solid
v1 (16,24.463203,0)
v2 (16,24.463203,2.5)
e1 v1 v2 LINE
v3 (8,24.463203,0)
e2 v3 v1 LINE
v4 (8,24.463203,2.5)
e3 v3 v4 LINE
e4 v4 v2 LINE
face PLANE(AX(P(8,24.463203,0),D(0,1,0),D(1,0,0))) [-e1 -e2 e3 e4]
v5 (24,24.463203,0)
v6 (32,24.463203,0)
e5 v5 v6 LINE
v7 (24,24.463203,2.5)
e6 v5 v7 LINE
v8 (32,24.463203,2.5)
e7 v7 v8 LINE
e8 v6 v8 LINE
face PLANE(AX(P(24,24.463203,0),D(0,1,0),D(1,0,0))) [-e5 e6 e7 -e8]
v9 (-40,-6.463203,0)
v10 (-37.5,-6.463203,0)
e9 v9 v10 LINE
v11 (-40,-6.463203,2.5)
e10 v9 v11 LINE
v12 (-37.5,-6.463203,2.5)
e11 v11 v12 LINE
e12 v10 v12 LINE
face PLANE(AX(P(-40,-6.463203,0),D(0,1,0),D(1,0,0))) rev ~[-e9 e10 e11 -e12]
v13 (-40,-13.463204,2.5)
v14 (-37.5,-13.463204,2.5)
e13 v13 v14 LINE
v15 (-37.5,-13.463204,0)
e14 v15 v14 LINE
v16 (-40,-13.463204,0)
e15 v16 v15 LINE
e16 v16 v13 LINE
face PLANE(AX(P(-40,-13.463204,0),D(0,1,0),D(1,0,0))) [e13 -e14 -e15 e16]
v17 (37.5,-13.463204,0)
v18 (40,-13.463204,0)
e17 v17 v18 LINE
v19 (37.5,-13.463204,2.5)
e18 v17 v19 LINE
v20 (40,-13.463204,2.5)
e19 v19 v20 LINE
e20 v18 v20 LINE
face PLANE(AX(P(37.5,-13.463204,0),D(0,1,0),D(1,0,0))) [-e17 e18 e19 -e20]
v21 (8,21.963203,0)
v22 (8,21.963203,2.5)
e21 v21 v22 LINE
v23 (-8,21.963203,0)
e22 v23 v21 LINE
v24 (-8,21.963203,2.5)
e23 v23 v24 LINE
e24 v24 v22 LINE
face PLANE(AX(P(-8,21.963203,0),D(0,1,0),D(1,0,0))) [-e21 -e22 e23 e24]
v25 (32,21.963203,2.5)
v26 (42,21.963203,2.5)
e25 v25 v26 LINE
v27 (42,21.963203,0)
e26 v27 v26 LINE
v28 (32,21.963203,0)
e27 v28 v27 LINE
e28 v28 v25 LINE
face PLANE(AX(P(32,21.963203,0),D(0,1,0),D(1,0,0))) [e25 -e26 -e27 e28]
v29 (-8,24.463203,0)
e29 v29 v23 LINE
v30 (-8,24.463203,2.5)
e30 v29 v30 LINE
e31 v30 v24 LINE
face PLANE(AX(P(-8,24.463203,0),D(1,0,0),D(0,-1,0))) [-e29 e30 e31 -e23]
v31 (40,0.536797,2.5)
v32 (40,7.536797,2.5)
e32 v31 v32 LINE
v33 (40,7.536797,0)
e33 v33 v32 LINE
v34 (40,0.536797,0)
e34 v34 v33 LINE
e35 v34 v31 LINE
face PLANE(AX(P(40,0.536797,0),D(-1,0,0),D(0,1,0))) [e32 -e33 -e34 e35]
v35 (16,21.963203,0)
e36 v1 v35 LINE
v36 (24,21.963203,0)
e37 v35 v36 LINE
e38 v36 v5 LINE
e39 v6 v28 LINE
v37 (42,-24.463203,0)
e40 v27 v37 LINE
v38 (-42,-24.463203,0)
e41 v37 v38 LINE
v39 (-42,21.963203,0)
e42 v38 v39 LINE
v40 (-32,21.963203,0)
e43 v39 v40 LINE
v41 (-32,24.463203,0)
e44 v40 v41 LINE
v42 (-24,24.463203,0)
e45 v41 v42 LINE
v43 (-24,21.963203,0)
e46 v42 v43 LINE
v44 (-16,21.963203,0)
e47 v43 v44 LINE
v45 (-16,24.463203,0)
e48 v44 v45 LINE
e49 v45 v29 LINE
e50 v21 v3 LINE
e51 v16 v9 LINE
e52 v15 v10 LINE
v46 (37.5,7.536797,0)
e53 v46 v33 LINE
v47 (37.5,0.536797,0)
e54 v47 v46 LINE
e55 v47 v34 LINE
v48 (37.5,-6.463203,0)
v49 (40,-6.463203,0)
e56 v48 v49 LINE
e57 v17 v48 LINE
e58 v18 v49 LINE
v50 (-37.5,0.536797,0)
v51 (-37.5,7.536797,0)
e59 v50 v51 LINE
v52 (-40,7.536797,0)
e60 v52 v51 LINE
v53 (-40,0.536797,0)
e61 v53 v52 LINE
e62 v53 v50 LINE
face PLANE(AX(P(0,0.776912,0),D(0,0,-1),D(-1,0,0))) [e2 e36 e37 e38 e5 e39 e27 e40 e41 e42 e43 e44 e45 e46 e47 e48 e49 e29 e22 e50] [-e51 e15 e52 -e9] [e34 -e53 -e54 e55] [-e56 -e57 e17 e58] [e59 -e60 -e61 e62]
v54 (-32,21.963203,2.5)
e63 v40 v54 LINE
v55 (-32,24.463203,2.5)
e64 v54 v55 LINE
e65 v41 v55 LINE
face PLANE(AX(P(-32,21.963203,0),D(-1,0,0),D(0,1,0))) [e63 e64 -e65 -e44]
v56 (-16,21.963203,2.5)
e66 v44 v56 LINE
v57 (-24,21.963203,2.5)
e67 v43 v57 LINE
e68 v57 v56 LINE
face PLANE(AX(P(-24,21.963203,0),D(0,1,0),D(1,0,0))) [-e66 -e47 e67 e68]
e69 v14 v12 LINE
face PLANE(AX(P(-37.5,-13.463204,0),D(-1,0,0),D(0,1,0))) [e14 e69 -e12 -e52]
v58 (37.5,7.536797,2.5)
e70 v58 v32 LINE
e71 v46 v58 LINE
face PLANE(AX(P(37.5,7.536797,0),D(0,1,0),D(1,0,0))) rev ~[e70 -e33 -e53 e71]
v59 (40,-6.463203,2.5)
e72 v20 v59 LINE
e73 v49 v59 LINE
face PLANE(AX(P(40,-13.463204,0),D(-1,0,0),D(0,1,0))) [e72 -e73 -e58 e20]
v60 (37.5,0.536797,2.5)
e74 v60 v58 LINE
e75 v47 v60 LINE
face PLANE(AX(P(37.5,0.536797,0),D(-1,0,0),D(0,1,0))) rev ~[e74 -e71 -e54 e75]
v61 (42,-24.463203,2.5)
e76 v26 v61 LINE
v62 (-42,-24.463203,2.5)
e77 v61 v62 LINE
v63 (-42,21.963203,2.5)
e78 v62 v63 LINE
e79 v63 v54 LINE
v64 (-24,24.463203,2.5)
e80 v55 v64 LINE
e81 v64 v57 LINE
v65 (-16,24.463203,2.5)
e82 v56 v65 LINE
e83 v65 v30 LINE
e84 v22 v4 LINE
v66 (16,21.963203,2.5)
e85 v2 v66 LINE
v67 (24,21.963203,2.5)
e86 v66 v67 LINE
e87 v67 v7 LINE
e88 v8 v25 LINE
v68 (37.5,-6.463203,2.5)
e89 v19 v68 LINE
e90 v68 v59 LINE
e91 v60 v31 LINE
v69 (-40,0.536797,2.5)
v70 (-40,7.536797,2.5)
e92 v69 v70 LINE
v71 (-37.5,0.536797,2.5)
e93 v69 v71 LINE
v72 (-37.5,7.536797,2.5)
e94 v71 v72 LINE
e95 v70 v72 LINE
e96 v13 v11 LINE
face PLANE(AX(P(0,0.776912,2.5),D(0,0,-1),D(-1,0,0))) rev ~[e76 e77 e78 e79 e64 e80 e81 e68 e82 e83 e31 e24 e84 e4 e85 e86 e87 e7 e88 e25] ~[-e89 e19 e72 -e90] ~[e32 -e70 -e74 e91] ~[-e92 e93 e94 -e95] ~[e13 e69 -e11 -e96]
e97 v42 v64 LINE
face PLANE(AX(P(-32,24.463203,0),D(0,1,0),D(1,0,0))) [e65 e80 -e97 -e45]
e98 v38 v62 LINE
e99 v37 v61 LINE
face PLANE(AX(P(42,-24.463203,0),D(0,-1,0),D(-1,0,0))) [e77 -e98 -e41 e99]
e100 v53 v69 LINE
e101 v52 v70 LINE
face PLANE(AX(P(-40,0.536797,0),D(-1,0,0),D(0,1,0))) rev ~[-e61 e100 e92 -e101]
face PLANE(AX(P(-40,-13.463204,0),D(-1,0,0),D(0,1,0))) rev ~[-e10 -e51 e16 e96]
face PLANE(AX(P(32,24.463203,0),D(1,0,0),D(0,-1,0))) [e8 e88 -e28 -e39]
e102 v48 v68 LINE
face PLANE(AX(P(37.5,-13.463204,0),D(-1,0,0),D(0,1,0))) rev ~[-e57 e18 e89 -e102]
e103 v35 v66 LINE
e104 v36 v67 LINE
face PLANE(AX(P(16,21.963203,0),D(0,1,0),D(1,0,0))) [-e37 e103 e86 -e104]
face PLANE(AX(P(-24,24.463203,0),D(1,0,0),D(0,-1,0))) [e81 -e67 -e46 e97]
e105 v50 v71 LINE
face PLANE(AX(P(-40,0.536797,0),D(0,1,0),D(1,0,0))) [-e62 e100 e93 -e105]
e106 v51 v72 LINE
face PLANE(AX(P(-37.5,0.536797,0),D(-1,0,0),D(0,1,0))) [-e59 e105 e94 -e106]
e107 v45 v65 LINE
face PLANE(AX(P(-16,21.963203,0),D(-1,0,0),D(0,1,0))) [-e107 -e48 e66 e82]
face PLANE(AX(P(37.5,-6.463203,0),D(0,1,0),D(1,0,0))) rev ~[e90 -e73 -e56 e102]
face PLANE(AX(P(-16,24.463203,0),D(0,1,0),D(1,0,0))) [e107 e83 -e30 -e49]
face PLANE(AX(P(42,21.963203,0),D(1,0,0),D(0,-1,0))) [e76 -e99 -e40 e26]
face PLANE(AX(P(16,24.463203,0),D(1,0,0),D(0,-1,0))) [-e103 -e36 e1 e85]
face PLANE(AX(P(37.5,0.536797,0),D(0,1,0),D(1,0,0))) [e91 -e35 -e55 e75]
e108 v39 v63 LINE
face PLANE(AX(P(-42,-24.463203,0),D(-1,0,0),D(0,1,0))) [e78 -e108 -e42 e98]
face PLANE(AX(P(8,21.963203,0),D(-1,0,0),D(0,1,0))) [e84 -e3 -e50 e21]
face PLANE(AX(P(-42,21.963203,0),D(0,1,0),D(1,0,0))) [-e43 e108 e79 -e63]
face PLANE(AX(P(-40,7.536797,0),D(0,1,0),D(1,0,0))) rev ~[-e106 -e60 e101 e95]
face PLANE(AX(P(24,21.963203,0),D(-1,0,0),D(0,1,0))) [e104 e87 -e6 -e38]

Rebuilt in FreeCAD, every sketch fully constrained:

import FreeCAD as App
import Part
import Sketcher
Q = App.Units.Quantity


def add_polygon(sketch, points):
    """Adds a closed chain of lines whose ends are joined by coincident constraints."""
    first, n = sketch.GeometryCount, len(points)
    for a, b in zip(points, points[1:] + points[:1]):
        sketch.addGeometry(Part.LineSegment(App.Vector(*a, 0), App.Vector(*b, 0)), False)
    for i in range(n):
        sketch.addConstraint(Sketcher.Constraint("Coincident", first + i, 2, first + (i + 1) % n, 1))

doc = App.newDocument("Part")
body = doc.addObject("PartDesign::Body", "Body")

sketch1 = body.newObject("Sketcher::SketchObject", "Sketch")
sketch1.AttachmentSupport = (doc.getObject("XY_Plane"), [""])
sketch1.MapMode = "FlatFace"
add_polygon(sketch1, [(-16, 24.5), (-16, 22), (-24, 22), (-24, 24.5), (-32, 24.5), (-32, 22), (-42, 22), (-42, -24.5), (42, -24.5), (42, 22), (32, 22), (32, 24.5), (24, 24.5), (24, 22), (16, 22), (16, 24.5), (8, 24.5), (8, 22), (-8, 22), (-8, 24.5)])
add_polygon(sketch1, [(37.5, -13.5), (37.5, -6.5), (40, -6.5), (40, -13.5)])
add_polygon(sketch1, [(-40, -13.5), (-40, -6.5), (-37.5, -6.5), (-37.5, -13.5)])
add_polygon(sketch1, [(37.5, 0.5), (37.5, 7.5), (40, 7.5), (40, 0.5)])
add_polygon(sketch1, [(-40, 0.5), (-40, 7.5), (-37.5, 7.5), (-37.5, 0.5)])
sketch1.addConstraint([
    Sketcher.Constraint("Vertical", 0),
    Sketcher.Constraint("Horizontal", 1),
    Sketcher.Constraint("Vertical", 2),
    Sketcher.Constraint("Horizontal", 3),
    Sketcher.Constraint("Vertical", 4),
    Sketcher.Constraint("Horizontal", 5),
    Sketcher.Constraint("Vertical", 6),
    Sketcher.Constraint("Horizontal", 7),
    Sketcher.Constraint("Vertical", 8),
    Sketcher.Constraint("Horizontal", 9),
    Sketcher.Constraint("Vertical", 10),
    Sketcher.Constraint("Horizontal", 11),
    Sketcher.Constraint("Vertical", 12),
    Sketcher.Constraint("Horizontal", 13),
    Sketcher.Constraint("Vertical", 14),
    Sketcher.Constraint("Horizontal", 15),
    Sketcher.Constraint("Vertical", 16),
    Sketcher.Constraint("Horizontal", 17),
    Sketcher.Constraint("Vertical", 18),
    Sketcher.Constraint("Horizontal", 19),
    Sketcher.Constraint("Vertical", 20),
    Sketcher.Constraint("Horizontal", 21),
    Sketcher.Constraint("Vertical", 22),
    Sketcher.Constraint("Horizontal", 23),
    Sketcher.Constraint("Vertical", 24),
    Sketcher.Constraint("Horizontal", 25),
    Sketcher.Constraint("Vertical", 26),
    Sketcher.Constraint("Horizontal", 27),
    Sketcher.Constraint("Vertical", 28),
    Sketcher.Constraint("Horizontal", 29),
    Sketcher.Constraint("Vertical", 30),
    Sketcher.Constraint("Horizontal", 31),
    Sketcher.Constraint("Vertical", 32),
    Sketcher.Constraint("Horizontal", 33),
    Sketcher.Constraint("Vertical", 34),
    Sketcher.Constraint("Horizontal", 35),
    Sketcher.Constraint("Symmetric", 5, 2, 8, 2, -2),
    Sketcher.Constraint("Symmetric", 3, 2, 10, 2, -2),
    Sketcher.Constraint("Symmetric", 1, 2, 12, 2, -2),
    Sketcher.Constraint("Symmetric", 15, 2, 18, 2, -2),
    Sketcher.Constraint("Symmetric", 21, 2, 24, 2, -2),
    Sketcher.Constraint("Symmetric", 23, 2, 26, 2, -2),
    Sketcher.Constraint("Symmetric", 29, 2, 32, 2, -2),
    Sketcher.Constraint("Symmetric", 31, 2, 34, 2, -2),
    Sketcher.Constraint("Horizontal", 1, 2, 4, 2),
    Sketcher.Constraint("Horizontal", 11, 2, 14, 2),
    Sketcher.Constraint("Horizontal", 13, 2, 16, 2),
    Sketcher.Constraint("Vertical", 23, 2, 28, 2),
    Sketcher.Constraint("Vertical", 22, 2, 29, 2),
    Sketcher.Constraint("Equal", 1, 3),
    Sketcher.Constraint("Equal", 11, 13),
    Sketcher.Constraint("Equal", 13, 15),
    Sketcher.Constraint("Equal", 35, 0),
    Sketcher.Constraint("Equal", 26, 28),
    Sketcher.Constraint("DistanceX", 1, 2, 1, 1, Q("8 mm")),
    Sketcher.Constraint("DistanceX", 5, 2, 5, 1, Q("10 mm")),
    Sketcher.Constraint("DistanceX", 7, 1, 7, 2, Q("84 mm")),
    Sketcher.Constraint("DistanceY", 20, 1, 20, 2, Q("7 mm")),
    Sketcher.Constraint("DistanceX", 21, 1, 21, 2, Q("2.5 mm")),
    Sketcher.Constraint("DistanceX", -1, 1, 21, 2, Q("40 mm")),
    Sketcher.Constraint("DistanceY", 7, 2, 20, 2, Q("18 mm")),
    Sketcher.Constraint("DistanceY", 20, 2, 28, 2, Q("14 mm")),
    Sketcher.Constraint("DistanceY", 6, 2, 6, 1, Q("46.426407 mm")),
    Sketcher.Constraint("DistanceY", -1, 1, 0, 2, Q("21.963203 mm")),
])
pad1 = body.newObject("PartDesign::Pad", "Pad")
pad1.Profile = sketch1
pad1.Length = 2.5

doc.recompute()
